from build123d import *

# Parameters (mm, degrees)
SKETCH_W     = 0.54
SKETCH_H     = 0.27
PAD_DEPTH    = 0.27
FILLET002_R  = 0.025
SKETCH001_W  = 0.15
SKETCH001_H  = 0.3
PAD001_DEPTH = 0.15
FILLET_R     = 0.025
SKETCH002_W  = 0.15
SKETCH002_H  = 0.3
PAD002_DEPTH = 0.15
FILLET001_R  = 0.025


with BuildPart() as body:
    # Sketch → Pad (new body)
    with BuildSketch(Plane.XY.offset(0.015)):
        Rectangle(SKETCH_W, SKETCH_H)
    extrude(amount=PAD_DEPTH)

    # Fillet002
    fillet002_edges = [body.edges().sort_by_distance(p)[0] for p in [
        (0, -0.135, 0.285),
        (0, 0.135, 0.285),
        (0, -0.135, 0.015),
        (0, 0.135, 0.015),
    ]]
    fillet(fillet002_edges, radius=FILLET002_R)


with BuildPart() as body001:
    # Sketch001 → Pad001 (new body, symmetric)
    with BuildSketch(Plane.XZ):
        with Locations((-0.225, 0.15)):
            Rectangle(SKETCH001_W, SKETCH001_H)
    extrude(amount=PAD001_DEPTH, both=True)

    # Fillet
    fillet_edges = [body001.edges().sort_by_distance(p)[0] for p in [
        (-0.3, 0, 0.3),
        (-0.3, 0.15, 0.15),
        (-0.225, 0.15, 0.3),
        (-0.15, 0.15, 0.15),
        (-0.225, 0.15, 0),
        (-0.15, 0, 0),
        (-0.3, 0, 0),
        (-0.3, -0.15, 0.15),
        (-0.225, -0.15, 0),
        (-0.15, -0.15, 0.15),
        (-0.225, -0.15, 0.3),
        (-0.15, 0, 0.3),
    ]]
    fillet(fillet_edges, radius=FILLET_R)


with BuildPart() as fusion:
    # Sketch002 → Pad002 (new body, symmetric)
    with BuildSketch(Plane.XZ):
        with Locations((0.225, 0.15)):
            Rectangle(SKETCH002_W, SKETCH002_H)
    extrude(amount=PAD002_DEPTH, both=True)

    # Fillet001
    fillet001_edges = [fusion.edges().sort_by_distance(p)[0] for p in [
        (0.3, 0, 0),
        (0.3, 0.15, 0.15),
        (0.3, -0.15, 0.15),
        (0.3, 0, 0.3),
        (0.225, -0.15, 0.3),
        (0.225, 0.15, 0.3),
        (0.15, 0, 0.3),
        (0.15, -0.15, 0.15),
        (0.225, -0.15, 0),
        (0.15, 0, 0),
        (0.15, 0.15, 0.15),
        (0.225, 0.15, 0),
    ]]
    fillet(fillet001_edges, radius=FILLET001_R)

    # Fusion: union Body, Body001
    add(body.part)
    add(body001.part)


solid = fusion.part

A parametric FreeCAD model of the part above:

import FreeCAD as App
import Part
import Sketcher
from FreeCAD import Vector
Q = App.Units.Quantity


def edges_at(feature, points):
    """Names of the edges that pass closest to the given points."""
    edges = feature.Shape.Edges
    near = lambda p: min(range(len(edges)), key=lambda i: edges[i].distToShape(Part.Vertex(*p))[0])
    return sorted({f"Edge{near(p) + 1}" for p in points})


def add_polygon(sketch, points):
    """Adds a closed chain of lines whose ends are joined by coincident constraints."""
    first, n = sketch.GeometryCount, len(points)
    for a, b in zip(points, points[1:] + points[:1]):
        sketch.addGeometry(Part.LineSegment(App.Vector(*a, 0), App.Vector(*b, 0)), False)
    for i in range(n):
        sketch.addConstraint(Sketcher.Constraint("Coincident", first + i, 2, first + (i + 1) % n, 1))

doc = App.newDocument("Part")
body = doc.addObject("PartDesign::Body", "Body")

# Sketch on XY plane
sketch1 = body.newObject("Sketcher::SketchObject", "Sketch")
sketch1.AttachmentSupport = (doc.getObject("XY_Plane"), [""])
sketch1.MapMode = "FlatFace"
sketch1.AttachmentOffset = App.Placement(Vector(0, 0, 0.015), App.Rotation())
add_polygon(sketch1, [(-0.27, 0.135), (-0.27, -0.135), (0.27, -0.135), (0.27, 0.135)])  # lines 0-3
sketch1.addConstraint([
    Sketcher.Constraint("Vertical", 0),
    Sketcher.Constraint("Horizontal", 1),
    Sketcher.Constraint("Vertical", 2),
    Sketcher.Constraint("Horizontal", 3),
    Sketcher.Constraint("Symmetric", 0, 2, 2, 2, -1, 1),
    Sketcher.Constraint("DistanceX", 1, 1, 1, 2, Q("0.54 mm")),
    Sketcher.Constraint("DistanceY", 0, 2, 0, 1, Q("0.27 mm")),
])
pad1 = body.newObject("PartDesign::Pad", "Pad")
pad1.Profile = sketch1
pad1.Length = 0.27
doc.recompute()

fillet = body.newObject("PartDesign::Fillet", "Fillet")
fillet.Base = (pad1, edges_at(pad1, [
    (0, -0.135, 0.285),
    (0, 0.135, 0.285),
    (0, -0.135, 0.015),
    (0, 0.135, 0.015),
]))
fillet.Radius = 0.025
body2 = doc.addObject("PartDesign::Body", "Body001")

# Sketch on XZ plane
sketch2 = body2.newObject("Sketcher::SketchObject", "Sketch001")
sketch2.AttachmentSupport = (doc.getObject("XZ_Plane001"), [""])
sketch2.MapMode = "FlatFace"
add_polygon(sketch2, [(-0.3, 0.3), (-0.3, 0), (-0.15, 0), (-0.15, 0.3)])  # lines 0-3
sketch2.addConstraint([
    Sketcher.Constraint("Vertical", 0),
    Sketcher.Constraint("Horizontal", 1),
    Sketcher.Constraint("Vertical", 2),
    Sketcher.Constraint("Horizontal", 3),
    Sketcher.Constraint("PointOnObject", 0, 2, -1),
    Sketcher.Constraint("DistanceY", 0, 2, 0, 1, Q("0.3 mm")),
    Sketcher.Constraint("DistanceX", 1, 1, 1, 2, Q("0.15 mm")),
    Sketcher.Constraint("DistanceX", 0, 2, -1, 1, Q("0.3 mm")),
])
pad2 = body2.newObject("PartDesign::Pad", "Pad001")
pad2.Profile = sketch2
pad2.Length = 0.3
pad2.Midplane = True
doc.recompute()

fillet2 = body2.newObject("PartDesign::Fillet", "Fillet001")
fillet2.Base = (pad2, ["Edge1"])
fillet2.UseAllEdges = True
fillet2.Radius = 0.025
body3 = doc.addObject("PartDesign::Body", "Body002")

# Sketch on XZ plane
sketch3 = body3.newObject("Sketcher::SketchObject", "Sketch002")
sketch3.AttachmentSupport = (doc.getObject("XZ_Plane002"), [""])
sketch3.MapMode = "FlatFace"
add_polygon(sketch3, [(0.15, 0.3), (0.15, 0), (0.3, 0), (0.3, 0.3)])  # lines 0-3
sketch3.addConstraint([
    Sketcher.Constraint("Vertical", 0),
    Sketcher.Constraint("Horizontal", 1),
    Sketcher.Constraint("Vertical", 2),
    Sketcher.Constraint("Horizontal", 3),
    Sketcher.Constraint("PointOnObject", 0, 2, -1),
    Sketcher.Constraint("DistanceY", 0, 2, 0, 1, Q("0.3 mm")),
    Sketcher.Constraint("DistanceX", 1, 1, 1, 2, Q("0.15 mm")),
    Sketcher.Constraint("DistanceX", -1, 1, 1, 2, Q("0.3 mm")),
])
pad3 = body3.newObject("PartDesign::Pad", "Pad002")
pad3.Profile = sketch3
pad3.Length = 0.3
pad3.Midplane = True
doc.recompute()

fillet3 = body3.newObject("PartDesign::Fillet", "Fillet002")
fillet3.Base = (pad3, ["Edge1"])
fillet3.UseAllEdges = True
fillet3.Radius = 0.025
doc.recompute()

boolean = body3.newObject("PartDesign::Boolean", "Boolean")
boolean.Type = "Fuse"
boolean.addObjects([body])
doc.recompute()

boolean2 = body3.newObject("PartDesign::Boolean", "Boolean001")
boolean2.Type = "Fuse"
boolean2.addObjects([body2])

doc.recompute()
